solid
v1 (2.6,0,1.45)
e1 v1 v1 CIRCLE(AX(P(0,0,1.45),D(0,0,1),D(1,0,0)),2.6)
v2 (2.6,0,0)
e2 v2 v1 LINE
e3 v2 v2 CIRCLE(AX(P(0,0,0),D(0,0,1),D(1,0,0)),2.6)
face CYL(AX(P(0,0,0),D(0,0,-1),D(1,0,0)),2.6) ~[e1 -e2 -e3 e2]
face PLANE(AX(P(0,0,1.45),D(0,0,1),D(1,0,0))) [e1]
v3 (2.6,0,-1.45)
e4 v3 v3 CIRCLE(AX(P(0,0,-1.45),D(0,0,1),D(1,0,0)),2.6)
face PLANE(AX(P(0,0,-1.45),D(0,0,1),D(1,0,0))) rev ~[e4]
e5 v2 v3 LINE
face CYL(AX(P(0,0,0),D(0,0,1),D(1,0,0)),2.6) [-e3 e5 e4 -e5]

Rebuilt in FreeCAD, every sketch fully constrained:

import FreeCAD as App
import Part
import Sketcher

doc = App.newDocument("Part")
params = doc.addObject("Spreadsheet::Sheet", "Params")
for row, (alias, value) in enumerate([
    ("sketch1_diameter", "5.2 mm"),
    ("pad1_length", "2.9 mm"),
], start=1):
    params.set(f"A{row}", alias)
    params.set(f"B{row}", "=" + value)
    params.setAlias(f"B{row}", alias)

body = doc.addObject("PartDesign::Body", "Body")

# Sketch on XY plane
sketch1 = body.newObject("Sketcher::SketchObject", "Sketch")
sketch1.AttachmentSupport = (doc.getObject("XY_Plane"), [""])
sketch1.MapMode = "FlatFace"
sketch1.addGeometry(Part.Circle(App.Vector(0, 0, 0), App.Vector(0, 0, 1), 2.6), False)
sketch1.addConstraint([
    Sketcher.Constraint("Coincident", 0, 3, -1, 1),
    Sketcher.Constraint("Diameter", 0, 5.2),
])
sketch1.setExpression("Constraints[1]", "Params.sketch1_diameter")
pad1 = body.newObject("PartDesign::Pad", "Pad")
pad1.Profile = sketch1
pad1.setExpression("Length", "Params.pad1_length")
pad1.Midplane = True

doc.recompute()
